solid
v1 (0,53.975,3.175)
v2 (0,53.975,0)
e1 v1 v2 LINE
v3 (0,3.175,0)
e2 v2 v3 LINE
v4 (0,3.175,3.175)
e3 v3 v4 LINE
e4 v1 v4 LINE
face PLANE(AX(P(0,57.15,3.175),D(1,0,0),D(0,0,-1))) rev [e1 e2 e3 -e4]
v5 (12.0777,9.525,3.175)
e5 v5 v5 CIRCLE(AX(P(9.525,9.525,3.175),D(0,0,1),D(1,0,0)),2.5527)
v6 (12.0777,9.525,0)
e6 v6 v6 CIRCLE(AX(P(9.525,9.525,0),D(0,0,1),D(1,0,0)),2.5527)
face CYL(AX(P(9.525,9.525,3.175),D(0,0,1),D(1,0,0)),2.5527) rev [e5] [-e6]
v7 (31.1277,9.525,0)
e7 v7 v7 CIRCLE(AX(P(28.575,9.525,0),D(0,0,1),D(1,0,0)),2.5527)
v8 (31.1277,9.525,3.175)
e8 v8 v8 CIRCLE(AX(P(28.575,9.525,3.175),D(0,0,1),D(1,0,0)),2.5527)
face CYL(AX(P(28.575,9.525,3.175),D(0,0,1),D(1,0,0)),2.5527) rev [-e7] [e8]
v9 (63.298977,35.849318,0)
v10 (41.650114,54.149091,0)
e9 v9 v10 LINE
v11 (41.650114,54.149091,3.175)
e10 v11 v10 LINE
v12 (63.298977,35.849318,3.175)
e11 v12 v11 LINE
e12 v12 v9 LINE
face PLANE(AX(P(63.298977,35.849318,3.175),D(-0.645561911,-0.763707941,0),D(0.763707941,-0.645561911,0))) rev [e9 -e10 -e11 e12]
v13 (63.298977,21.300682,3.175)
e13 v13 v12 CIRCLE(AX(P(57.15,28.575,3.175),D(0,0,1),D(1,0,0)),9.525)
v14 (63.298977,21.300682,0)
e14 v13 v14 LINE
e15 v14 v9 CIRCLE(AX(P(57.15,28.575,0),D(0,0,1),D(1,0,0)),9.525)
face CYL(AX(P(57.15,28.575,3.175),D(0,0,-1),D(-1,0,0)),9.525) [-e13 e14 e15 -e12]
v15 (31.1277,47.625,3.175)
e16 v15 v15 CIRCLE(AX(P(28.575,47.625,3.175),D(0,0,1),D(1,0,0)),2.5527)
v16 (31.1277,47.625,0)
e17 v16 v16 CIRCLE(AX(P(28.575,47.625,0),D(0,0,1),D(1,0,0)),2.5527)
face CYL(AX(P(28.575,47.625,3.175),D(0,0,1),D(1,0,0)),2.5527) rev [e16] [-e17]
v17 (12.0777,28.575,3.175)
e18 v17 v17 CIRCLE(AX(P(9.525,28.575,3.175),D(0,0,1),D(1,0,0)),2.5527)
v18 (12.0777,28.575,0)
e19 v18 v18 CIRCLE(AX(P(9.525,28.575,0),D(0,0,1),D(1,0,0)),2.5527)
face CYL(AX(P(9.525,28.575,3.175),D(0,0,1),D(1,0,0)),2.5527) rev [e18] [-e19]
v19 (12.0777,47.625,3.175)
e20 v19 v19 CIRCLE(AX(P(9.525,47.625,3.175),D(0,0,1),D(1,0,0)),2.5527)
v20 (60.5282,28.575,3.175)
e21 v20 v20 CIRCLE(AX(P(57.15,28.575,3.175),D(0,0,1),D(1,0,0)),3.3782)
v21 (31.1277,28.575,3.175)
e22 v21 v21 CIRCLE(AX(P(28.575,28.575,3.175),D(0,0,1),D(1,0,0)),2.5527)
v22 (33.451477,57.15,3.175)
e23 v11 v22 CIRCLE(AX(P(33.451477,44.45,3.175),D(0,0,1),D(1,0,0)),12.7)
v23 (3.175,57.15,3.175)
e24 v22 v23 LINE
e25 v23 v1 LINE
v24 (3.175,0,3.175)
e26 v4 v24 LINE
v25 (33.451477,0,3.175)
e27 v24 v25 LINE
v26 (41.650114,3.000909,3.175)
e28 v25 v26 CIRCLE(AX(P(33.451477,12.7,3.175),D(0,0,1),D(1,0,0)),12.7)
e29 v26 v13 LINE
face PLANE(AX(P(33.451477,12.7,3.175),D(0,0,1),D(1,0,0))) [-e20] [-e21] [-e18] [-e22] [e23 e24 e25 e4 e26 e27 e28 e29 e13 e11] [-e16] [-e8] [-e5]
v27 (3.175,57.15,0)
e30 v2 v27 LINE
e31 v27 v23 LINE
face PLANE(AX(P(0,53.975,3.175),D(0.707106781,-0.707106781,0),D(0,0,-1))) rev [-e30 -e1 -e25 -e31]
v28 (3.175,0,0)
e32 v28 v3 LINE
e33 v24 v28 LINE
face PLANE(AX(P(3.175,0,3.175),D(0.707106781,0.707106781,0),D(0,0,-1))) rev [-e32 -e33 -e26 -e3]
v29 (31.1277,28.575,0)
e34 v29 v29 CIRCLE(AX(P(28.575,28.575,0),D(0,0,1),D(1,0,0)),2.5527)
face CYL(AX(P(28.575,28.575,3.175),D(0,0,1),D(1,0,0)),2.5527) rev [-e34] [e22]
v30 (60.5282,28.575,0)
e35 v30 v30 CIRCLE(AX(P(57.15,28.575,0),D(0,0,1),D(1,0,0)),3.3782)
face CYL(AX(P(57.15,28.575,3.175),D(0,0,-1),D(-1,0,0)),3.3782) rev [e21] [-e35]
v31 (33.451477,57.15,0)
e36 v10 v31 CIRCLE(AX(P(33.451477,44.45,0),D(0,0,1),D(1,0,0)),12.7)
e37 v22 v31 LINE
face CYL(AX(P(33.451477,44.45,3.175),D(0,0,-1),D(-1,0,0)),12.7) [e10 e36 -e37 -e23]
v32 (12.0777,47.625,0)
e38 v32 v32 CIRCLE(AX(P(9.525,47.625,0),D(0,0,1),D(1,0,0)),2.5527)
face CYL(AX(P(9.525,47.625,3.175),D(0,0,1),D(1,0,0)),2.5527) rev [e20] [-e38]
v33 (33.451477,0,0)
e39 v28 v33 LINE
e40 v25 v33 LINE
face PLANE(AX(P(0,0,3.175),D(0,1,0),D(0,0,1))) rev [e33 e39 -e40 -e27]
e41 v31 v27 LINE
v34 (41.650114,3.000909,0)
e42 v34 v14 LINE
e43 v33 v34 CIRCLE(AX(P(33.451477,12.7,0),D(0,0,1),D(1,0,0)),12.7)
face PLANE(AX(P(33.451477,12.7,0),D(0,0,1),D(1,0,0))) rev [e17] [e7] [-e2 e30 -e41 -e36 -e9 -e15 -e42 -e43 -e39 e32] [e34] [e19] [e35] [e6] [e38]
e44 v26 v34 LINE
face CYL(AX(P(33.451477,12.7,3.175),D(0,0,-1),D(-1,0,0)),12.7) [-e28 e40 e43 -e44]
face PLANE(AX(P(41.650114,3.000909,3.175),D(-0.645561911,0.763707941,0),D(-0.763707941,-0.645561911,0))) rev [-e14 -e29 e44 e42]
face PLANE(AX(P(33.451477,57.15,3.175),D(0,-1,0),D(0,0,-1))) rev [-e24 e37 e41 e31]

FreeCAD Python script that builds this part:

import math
import FreeCAD as App
import Part
import Sketcher
from FreeCAD import Vector
Q = App.Units.Quantity


def edges_at(feature, points):
    """Names of the edges that pass closest to the given points."""
    edges = feature.Shape.Edges
    near = lambda p: min(range(len(edges)), key=lambda i: edges[i].distToShape(Part.Vertex(*p))[0])
    return sorted({f"Edge{near(p) + 1}" for p in points})

doc = App.newDocument("Part")
params = doc.addObject("Spreadsheet::Sheet", "Params")
for row, (alias, value) in enumerate([
    ("sketch1_radius", "0.5 in"),
    ("sketch1_diameter", "0.266 in"),
    ("sketch1_radius2", "0.375 in"),
    ("sketch1_height", "2.25 in"),
    ("pad1_length", "0.125 in"),
    ("sketch2_diameter", "0.201 in"),
    ("hole_diameter", "0.201 in"),
    ("chamfer_size", "0.125 in"),
], start=1):
    params.set(f"A{row}", alias)
    params.set(f"B{row}", "=" + value)
    params.setAlias(f"B{row}", alias)

body = doc.addObject("PartDesign::Body", "Body")

# Sketch on XY plane
sketch1 = doc.addObject("Sketcher::SketchObject", "Sketch")
body.addObject(sketch1)
sketch1.AttachmentSupport = (doc.XY_Plane, [""])
sketch1.MapMode = "FlatFace"
sketch1.addGeometry(Part.LineSegment(Vector(0, 0, 0), Vector(33.5, 0, 0)), False)
sketch1.addGeometry(Part.ArcOfCircle(Part.Circle(Vector(33.5, 12.7, 0), Vector(0, 0, 1), 12.7), math.radians(-90), math.radians(-50)), False)
sketch1.addGeometry(Part.LineSegment(Vector(41.7, 3, 0), Vector(63.3, 21.3, 0)), False)
sketch1.addGeometry(Part.ArcOfCircle(Part.Circle(Vector(57.1, 28.6, 0), Vector(0, 0, 1), 9.5), math.radians(-50), math.radians(50)), False)
sketch1.addGeometry(Part.LineSegment(Vector(63.3, 35.8, 0), Vector(41.7, 54.1, 0)), False)
sketch1.addGeometry(Part.ArcOfCircle(Part.Circle(Vector(33.5, 44.4, 0), Vector(0, 0, 1), 12.7), math.radians(50), math.radians(90)), False)
sketch1.addGeometry(Part.LineSegment(Vector(33.5, 57.1, 0), Vector(0, 57.1, 0)), False)
sketch1.addGeometry(Part.LineSegment(Vector(0, 57.1, 0), Vector(0, 0, 0)), False)
sketch1.addGeometry(Part.Circle(Vector(57.1, 28.6, 0), Vector(0, 0, 1), 3.4), False)
sketch1.addConstraint(Sketcher.Constraint("Tangent", 0, 2, 1, 1))
sketch1.addConstraint(Sketcher.Constraint("Tangent", 1, 2, 2, 1))
sketch1.addConstraint(Sketcher.Constraint("Tangent", 2, 2, 3, 1))
sketch1.addConstraint(Sketcher.Constraint("Tangent", 3, 2, 4, 1))
sketch1.addConstraint(Sketcher.Constraint("Tangent", 4, 2, 5, 1))
sketch1.addConstraint(Sketcher.Constraint("Tangent", 5, 2, 6, 1))
sketch1.addConstraint(Sketcher.Constraint("Coincident", 6, 2, 7, 1))
sketch1.addConstraint(Sketcher.Constraint("Coincident", 7, 2, 0, 1))
sketch1.addConstraint(Sketcher.Constraint("Horizontal", 0))
sketch1.addConstraint(Sketcher.Constraint("Horizontal", 6))
sketch1.addConstraint(Sketcher.Constraint("Vertical", 7))
sketch1.addConstraint(Sketcher.Constraint("Coincident", 7, 2, -1, 1))
sketch1.addConstraint(Sketcher.Constraint("Coincident", 8, 3, 3, 3))
sketch1.addConstraint(Sketcher.Constraint("Equal", 1, 5))
sketch1.addConstraint(Sketcher.Constraint("Vertical", 1, 3, 5, 3))
sketch1.addConstraint(Sketcher.Constraint("Vertical", 2, 2, 3, 2))
sketch1.addConstraint(Sketcher.Constraint("Radius", 1, Q("0.5 in")))
sketch1.addConstraint(Sketcher.Constraint("Diameter", 8, Q("0.266 in")))
sketch1.addConstraint(Sketcher.Constraint("Radius", 3, Q("0.375 in")))
sketch1.addConstraint(Sketcher.Constraint("DistanceY", 7, 2, 7, 1, Q("2.25 in")))
sketch1.addConstraint(Sketcher.Constraint("DistanceX", -1, 1, 3, 3, Q("2.25 in")))
sketch1.addConstraint(Sketcher.Constraint("DistanceX", 1, 3, 2, 2, Q("29.8475 mm")))
sketch1.setExpression("Constraints[16]", "Params.sketch1_radius")
sketch1.setExpression("Constraints[17]", "Params.sketch1_diameter")
sketch1.setExpression("Constraints[18]", "Params.sketch1_radius2")
sketch1.setExpression("Constraints[19]", "Params.sketch1_height")
pad1 = doc.addObject("PartDesign::Pad", "Pad")
body.addObject(pad1)
pad1.Profile = sketch1
pad1.setExpression("Length", "Params.pad1_length")

# Sketch on XY plane
sketch2 = doc.addObject("Sketcher::SketchObject", "Sketch001")
body.addObject(sketch2)
sketch2.AttachmentSupport = (doc.XY_Plane, [""])
sketch2.MapMode = "FlatFace"
sketch2.AttachmentOffset = App.Placement(Vector(0, 0, 0.125 * 25.4), App.Rotation())
sketch2.addGeometry(Part.Circle(Vector(28.6, 28.6, 0), Vector(0, 0, 1), 2.6), False)
sketch2.addGeometry(Part.Circle(Vector(9.5, 28.6, 0), Vector(0, 0, 1), 2.6), False)
sketch2.addGeometry(Part.Circle(Vector(9.5, 47.6, 0), Vector(0, 0, 1), 2.6), False)
sketch2.addGeometry(Part.Circle(Vector(28.6, 47.6, 0), Vector(0, 0, 1), 2.6), False)
sketch2.addGeometry(Part.Circle(Vector(28.6, 9.5, 0), Vector(0, 0, 1), 2.6), False)
sketch2.addGeometry(Part.Circle(Vector(9.5, 9.5, 0), Vector(0, 0, 1), 2.6), False)
sketch2.addConstraint(Sketcher.Constraint("Equal", 0, 1))
sketch2.addConstraint(Sketcher.Constraint("Equal", 1, 2))
sketch2.addConstraint(Sketcher.Constraint("Equal", 2, 3))
sketch2.addConstraint(Sketcher.Constraint("Equal", 3, 4))
sketch2.addConstraint(Sketcher.Constraint("Equal", 4, 5))
sketch2.addConstraint(Sketcher.Constraint("Horizontal", 0, 3, 1, 3))
sketch2.addConstraint(Sketcher.Constraint("Horizontal", 2, 3, 3, 3))
sketch2.addConstraint(Sketcher.Constraint("Horizontal", 4, 3, 5, 3))
sketch2.addConstraint(Sketcher.Constraint("Vertical", 1, 3, 2, 3))
sketch2.addConstraint(Sketcher.Constraint("Vertical", 0, 3, 3, 3))
sketch2.addConstraint(Sketcher.Constraint("Vertical", 3, 3, 4, 3))
sketch2.addConstraint(Sketcher.Constraint("Vertical", 2, 3, 5, 3))
sketch2.addConstraint(Sketcher.Constraint("Diameter", 0, Q("0.201 in")))
sketch2.addConstraint(Sketcher.Constraint("DistanceY", 4, 3, 3, 3, Q("1.5 in")))
sketch2.addConstraint(Sketcher.Constraint("DistanceX", 1, 3, 0, 3, Q("0.75 in")))
sketch2.addConstraint(Sketcher.Constraint("DistanceY", 1, 3, 2, 3, Q("0.75 in")))
sketch2.addConstraint(Sketcher.Constraint("DistanceX", -1, 1, 0, 3, Q("1.125 in")))
sketch2.addConstraint(Sketcher.Constraint("DistanceY", -1, 1, 0, 3, Q("1.125 in")))
sketch2.setExpression("Constraints[12]", "Params.sketch2_diameter")
doc.recompute()
hole = doc.addObject("PartDesign::Hole", "Hole")
body.addObject(hole)
hole.Profile = sketch2
hole.ThreadType = "None"
hole.setExpression("Diameter", "Params.hole_diameter")
hole.DepthType = "ThroughAll"
doc.recompute()

chamfer = doc.addObject("PartDesign::Chamfer", "Chamfer")
body.addObject(chamfer)
chamfer.Base = (hole, edges_at(hole, [(0, 57.15, 1.587), (0, 0, 1.587)]))
chamfer.setExpression("Size", "Params.chamfer_size")

doc.recompute()
